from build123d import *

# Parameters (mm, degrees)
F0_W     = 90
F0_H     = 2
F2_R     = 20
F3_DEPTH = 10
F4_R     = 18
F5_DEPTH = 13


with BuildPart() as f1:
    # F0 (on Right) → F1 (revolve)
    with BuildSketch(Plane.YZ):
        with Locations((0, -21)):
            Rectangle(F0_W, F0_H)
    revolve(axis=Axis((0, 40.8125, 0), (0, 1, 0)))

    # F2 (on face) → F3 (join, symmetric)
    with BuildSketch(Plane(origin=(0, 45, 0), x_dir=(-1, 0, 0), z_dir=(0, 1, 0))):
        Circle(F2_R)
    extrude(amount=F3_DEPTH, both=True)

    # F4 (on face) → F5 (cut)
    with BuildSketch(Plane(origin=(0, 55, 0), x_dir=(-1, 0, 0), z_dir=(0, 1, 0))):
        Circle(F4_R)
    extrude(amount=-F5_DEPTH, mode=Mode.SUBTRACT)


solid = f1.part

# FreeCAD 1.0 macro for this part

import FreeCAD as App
import Part
import Sketcher
from FreeCAD import Vector

doc = App.newDocument("Part")
body = doc.addObject("PartDesign::Body", "Body")

# Sketch on YZ plane
sketch1 = body.newObject("Sketcher::SketchObject", "Sketch")
sketch1.AttachmentSupport = (doc.getObject("YZ_Plane"), [""])
sketch1.MapMode = "FlatFace"
sketch1.addGeometry(Part.LineSegment(Vector(-45, -20, 0), Vector(-45, -22, 0)), False)
sketch1.addGeometry(Part.LineSegment(Vector(-45, -22, 0), Vector(45, -22, 0)), False)
sketch1.addGeometry(Part.LineSegment(Vector(45, -22, 0), Vector(45, -20, 0)), False)
sketch1.addGeometry(Part.LineSegment(Vector(45, -20, 0), Vector(-45, -20, 0)), False)
sketch1.addConstraint(Sketcher.Constraint("Coincident", 0, 2, 1, 1))
sketch1.addConstraint(Sketcher.Constraint("Coincident", 1, 2, 2, 1))
sketch1.addConstraint(Sketcher.Constraint("Coincident", 2, 2, 3, 1))
sketch1.addConstraint(Sketcher.Constraint("Coincident", 3, 2, 0, 1))
sketch1.addConstraint(Sketcher.Constraint("Vertical", 0))
sketch1.addConstraint(Sketcher.Constraint("Horizontal", 1))
sketch1.addConstraint(Sketcher.Constraint("Vertical", 2))
sketch1.addConstraint(Sketcher.Constraint("Horizontal", 3))
sketch1.addConstraint(Sketcher.Constraint("DistanceX", 1, 1, 1, 2, 90.0))
sketch1.addConstraint(Sketcher.Constraint("DistanceY", 0, 2, 0, 1, 2.0))
sketch1.addConstraint(Sketcher.Constraint("DistanceX", 0, 2, -1, 1, 45.0))
sketch1.addConstraint(Sketcher.Constraint("DistanceY", 0, 2, -1, 1, 22.0))
revolution = body.newObject("PartDesign::Revolution", "Revolution")
revolution.Profile = sketch1
revolution.ReferenceAxis = (sketch1, ["H_Axis"])
revolution.Angle = 360

# Sketch on XZ plane
sketch2 = body.newObject("Sketcher::SketchObject", "Sketch001")
sketch2.AttachmentSupport = (doc.getObject("XZ_Plane"), [""])
sketch2.MapMode = "FlatFace"
sketch2.AttachmentOffset = App.Placement(Vector(0, 0, -45), App.Rotation())
sketch2.addGeometry(Part.Circle(Vector(0, 0, 0), Vector(0, 0, 1), 20), False)
sketch2.addConstraint(Sketcher.Constraint("Coincident", 0, 3, -1, 1))
sketch2.addConstraint(Sketcher.Constraint("Diameter", 0, 40.0))
pad1 = body.newObject("PartDesign::Pad", "Pad")
pad1.Profile = sketch2
pad1.Length = 20
pad1.Midplane = True

# Sketch on XZ plane
sketch3 = body.newObject("Sketcher::SketchObject", "Sketch002")
sketch3.AttachmentSupport = (doc.getObject("XZ_Plane"), [""])
sketch3.MapMode = "FlatFace"
sketch3.AttachmentOffset = App.Placement(Vector(0, 0, -55), App.Rotation())
sketch3.addGeometry(Part.Circle(Vector(0, 0, 0), Vector(0, 0, 1), 18), False)
sketch3.addConstraint(Sketcher.Constraint("Coincident", 0, 3, -1, 1))
sketch3.addConstraint(Sketcher.Constraint("Diameter", 0, 36.0))
pocket1 = body.newObject("PartDesign::Pocket", "Pocket")
pocket1.Profile = sketch3
pocket1.Length = 13
pocket1.Reversed = True

doc.recompute()
